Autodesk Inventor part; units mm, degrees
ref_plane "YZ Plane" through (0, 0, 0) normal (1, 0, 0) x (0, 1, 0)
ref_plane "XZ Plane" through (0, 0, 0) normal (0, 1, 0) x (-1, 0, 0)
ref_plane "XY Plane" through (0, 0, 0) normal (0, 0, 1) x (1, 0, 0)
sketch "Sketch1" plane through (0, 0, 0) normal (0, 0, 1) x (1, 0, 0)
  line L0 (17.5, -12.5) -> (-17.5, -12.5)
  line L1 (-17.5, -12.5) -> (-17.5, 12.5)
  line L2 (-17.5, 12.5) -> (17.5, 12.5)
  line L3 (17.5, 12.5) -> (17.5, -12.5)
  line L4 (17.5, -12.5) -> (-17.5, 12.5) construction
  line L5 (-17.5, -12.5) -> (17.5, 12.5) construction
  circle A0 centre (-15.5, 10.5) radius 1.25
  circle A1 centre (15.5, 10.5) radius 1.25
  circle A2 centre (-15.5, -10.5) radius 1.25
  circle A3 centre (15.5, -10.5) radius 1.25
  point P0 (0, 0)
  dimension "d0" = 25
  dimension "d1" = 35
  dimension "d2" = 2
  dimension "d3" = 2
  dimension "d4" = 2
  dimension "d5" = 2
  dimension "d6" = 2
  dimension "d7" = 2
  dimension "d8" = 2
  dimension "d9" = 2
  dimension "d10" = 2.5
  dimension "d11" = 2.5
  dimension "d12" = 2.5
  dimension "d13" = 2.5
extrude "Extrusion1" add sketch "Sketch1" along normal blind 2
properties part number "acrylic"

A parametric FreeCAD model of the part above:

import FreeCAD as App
import Part
import Sketcher
from FreeCAD import Vector

doc = App.newDocument("Part")
body = doc.addObject("PartDesign::Body", "Body")

# Sketch on XY plane
sketch1 = doc.addObject("Sketcher::SketchObject", "Sketch")
body.addObject(sketch1)
sketch1.AttachmentSupport = (doc.XY_Plane, [""])
sketch1.MapMode = "FlatFace"
sketch1.addGeometry(Part.LineSegment(Vector(-17.5, -12.5, 0), Vector(17.5, -12.5, 0)), False)
sketch1.addGeometry(Part.LineSegment(Vector(17.5, -12.5, 0), Vector(17.5, 12.5, 0)), False)
sketch1.addGeometry(Part.LineSegment(Vector(17.5, 12.5, 0), Vector(-17.5, 12.5, 0)), False)
sketch1.addGeometry(Part.LineSegment(Vector(-17.5, 12.5, 0), Vector(-17.5, -12.5, 0)), False)
sketch1.addGeometry(Part.Circle(Vector(-15.5, -10.5, 0), Vector(0, 0, 1), 1.2), False)
sketch1.addGeometry(Part.Circle(Vector(15.5, -10.5, 0), Vector(0, 0, 1), 1.2), False)
sketch1.addGeometry(Part.Circle(Vector(-15.5, 10.5, 0), Vector(0, 0, 1), 1.2), False)
sketch1.addGeometry(Part.Circle(Vector(15.5, 10.5, 0), Vector(0, 0, 1), 1.2), False)
sketch1.addConstraint(Sketcher.Constraint("Coincident", 0, 2, 1, 1))
sketch1.addConstraint(Sketcher.Constraint("Coincident", 1, 2, 2, 1))
sketch1.addConstraint(Sketcher.Constraint("Coincident", 2, 2, 3, 1))
sketch1.addConstraint(Sketcher.Constraint("Coincident", 3, 2, 0, 1))
sketch1.addConstraint(Sketcher.Constraint("Horizontal", 0))
sketch1.addConstraint(Sketcher.Constraint("Vertical", 1))
sketch1.addConstraint(Sketcher.Constraint("Horizontal", 2))
sketch1.addConstraint(Sketcher.Constraint("Vertical", 3))
sketch1.addConstraint(Sketcher.Constraint("Equal", 4, 5))
sketch1.addConstraint(Sketcher.Constraint("Equal", 5, 6))
sketch1.addConstraint(Sketcher.Constraint("Equal", 6, 7))
sketch1.addConstraint(Sketcher.Constraint("Symmetric", 5, 3, 6, 3, -1, 1))
sketch1.addConstraint(Sketcher.Constraint("Symmetric", 4, 3, 7, 3, -1, 1))
sketch1.addConstraint(Sketcher.Constraint("Symmetric", 0, 2, 2, 2, -1, 1))
sketch1.addConstraint(Sketcher.Constraint("Symmetric", 4, 3, 5, 3, -2))
sketch1.addConstraint(Sketcher.Constraint("Diameter", 4, 2.5))
sketch1.addConstraint(Sketcher.Constraint("DistanceX", 0, 1, 0, 2, 35.0))
sketch1.addConstraint(Sketcher.Constraint("DistanceY", 1, 1, 1, 2, 25.0))
sketch1.addConstraint(Sketcher.Constraint("DistanceX", 5, 3, 0, 2, 2.0))
sketch1.addConstraint(Sketcher.Constraint("DistanceY", 0, 2, 5, 3, 2.0))
pad1 = doc.addObject("PartDesign::Pad", "Pad")
body.addObject(pad1)
pad1.Profile = sketch1
pad1.Length = 2

doc.recompute()
